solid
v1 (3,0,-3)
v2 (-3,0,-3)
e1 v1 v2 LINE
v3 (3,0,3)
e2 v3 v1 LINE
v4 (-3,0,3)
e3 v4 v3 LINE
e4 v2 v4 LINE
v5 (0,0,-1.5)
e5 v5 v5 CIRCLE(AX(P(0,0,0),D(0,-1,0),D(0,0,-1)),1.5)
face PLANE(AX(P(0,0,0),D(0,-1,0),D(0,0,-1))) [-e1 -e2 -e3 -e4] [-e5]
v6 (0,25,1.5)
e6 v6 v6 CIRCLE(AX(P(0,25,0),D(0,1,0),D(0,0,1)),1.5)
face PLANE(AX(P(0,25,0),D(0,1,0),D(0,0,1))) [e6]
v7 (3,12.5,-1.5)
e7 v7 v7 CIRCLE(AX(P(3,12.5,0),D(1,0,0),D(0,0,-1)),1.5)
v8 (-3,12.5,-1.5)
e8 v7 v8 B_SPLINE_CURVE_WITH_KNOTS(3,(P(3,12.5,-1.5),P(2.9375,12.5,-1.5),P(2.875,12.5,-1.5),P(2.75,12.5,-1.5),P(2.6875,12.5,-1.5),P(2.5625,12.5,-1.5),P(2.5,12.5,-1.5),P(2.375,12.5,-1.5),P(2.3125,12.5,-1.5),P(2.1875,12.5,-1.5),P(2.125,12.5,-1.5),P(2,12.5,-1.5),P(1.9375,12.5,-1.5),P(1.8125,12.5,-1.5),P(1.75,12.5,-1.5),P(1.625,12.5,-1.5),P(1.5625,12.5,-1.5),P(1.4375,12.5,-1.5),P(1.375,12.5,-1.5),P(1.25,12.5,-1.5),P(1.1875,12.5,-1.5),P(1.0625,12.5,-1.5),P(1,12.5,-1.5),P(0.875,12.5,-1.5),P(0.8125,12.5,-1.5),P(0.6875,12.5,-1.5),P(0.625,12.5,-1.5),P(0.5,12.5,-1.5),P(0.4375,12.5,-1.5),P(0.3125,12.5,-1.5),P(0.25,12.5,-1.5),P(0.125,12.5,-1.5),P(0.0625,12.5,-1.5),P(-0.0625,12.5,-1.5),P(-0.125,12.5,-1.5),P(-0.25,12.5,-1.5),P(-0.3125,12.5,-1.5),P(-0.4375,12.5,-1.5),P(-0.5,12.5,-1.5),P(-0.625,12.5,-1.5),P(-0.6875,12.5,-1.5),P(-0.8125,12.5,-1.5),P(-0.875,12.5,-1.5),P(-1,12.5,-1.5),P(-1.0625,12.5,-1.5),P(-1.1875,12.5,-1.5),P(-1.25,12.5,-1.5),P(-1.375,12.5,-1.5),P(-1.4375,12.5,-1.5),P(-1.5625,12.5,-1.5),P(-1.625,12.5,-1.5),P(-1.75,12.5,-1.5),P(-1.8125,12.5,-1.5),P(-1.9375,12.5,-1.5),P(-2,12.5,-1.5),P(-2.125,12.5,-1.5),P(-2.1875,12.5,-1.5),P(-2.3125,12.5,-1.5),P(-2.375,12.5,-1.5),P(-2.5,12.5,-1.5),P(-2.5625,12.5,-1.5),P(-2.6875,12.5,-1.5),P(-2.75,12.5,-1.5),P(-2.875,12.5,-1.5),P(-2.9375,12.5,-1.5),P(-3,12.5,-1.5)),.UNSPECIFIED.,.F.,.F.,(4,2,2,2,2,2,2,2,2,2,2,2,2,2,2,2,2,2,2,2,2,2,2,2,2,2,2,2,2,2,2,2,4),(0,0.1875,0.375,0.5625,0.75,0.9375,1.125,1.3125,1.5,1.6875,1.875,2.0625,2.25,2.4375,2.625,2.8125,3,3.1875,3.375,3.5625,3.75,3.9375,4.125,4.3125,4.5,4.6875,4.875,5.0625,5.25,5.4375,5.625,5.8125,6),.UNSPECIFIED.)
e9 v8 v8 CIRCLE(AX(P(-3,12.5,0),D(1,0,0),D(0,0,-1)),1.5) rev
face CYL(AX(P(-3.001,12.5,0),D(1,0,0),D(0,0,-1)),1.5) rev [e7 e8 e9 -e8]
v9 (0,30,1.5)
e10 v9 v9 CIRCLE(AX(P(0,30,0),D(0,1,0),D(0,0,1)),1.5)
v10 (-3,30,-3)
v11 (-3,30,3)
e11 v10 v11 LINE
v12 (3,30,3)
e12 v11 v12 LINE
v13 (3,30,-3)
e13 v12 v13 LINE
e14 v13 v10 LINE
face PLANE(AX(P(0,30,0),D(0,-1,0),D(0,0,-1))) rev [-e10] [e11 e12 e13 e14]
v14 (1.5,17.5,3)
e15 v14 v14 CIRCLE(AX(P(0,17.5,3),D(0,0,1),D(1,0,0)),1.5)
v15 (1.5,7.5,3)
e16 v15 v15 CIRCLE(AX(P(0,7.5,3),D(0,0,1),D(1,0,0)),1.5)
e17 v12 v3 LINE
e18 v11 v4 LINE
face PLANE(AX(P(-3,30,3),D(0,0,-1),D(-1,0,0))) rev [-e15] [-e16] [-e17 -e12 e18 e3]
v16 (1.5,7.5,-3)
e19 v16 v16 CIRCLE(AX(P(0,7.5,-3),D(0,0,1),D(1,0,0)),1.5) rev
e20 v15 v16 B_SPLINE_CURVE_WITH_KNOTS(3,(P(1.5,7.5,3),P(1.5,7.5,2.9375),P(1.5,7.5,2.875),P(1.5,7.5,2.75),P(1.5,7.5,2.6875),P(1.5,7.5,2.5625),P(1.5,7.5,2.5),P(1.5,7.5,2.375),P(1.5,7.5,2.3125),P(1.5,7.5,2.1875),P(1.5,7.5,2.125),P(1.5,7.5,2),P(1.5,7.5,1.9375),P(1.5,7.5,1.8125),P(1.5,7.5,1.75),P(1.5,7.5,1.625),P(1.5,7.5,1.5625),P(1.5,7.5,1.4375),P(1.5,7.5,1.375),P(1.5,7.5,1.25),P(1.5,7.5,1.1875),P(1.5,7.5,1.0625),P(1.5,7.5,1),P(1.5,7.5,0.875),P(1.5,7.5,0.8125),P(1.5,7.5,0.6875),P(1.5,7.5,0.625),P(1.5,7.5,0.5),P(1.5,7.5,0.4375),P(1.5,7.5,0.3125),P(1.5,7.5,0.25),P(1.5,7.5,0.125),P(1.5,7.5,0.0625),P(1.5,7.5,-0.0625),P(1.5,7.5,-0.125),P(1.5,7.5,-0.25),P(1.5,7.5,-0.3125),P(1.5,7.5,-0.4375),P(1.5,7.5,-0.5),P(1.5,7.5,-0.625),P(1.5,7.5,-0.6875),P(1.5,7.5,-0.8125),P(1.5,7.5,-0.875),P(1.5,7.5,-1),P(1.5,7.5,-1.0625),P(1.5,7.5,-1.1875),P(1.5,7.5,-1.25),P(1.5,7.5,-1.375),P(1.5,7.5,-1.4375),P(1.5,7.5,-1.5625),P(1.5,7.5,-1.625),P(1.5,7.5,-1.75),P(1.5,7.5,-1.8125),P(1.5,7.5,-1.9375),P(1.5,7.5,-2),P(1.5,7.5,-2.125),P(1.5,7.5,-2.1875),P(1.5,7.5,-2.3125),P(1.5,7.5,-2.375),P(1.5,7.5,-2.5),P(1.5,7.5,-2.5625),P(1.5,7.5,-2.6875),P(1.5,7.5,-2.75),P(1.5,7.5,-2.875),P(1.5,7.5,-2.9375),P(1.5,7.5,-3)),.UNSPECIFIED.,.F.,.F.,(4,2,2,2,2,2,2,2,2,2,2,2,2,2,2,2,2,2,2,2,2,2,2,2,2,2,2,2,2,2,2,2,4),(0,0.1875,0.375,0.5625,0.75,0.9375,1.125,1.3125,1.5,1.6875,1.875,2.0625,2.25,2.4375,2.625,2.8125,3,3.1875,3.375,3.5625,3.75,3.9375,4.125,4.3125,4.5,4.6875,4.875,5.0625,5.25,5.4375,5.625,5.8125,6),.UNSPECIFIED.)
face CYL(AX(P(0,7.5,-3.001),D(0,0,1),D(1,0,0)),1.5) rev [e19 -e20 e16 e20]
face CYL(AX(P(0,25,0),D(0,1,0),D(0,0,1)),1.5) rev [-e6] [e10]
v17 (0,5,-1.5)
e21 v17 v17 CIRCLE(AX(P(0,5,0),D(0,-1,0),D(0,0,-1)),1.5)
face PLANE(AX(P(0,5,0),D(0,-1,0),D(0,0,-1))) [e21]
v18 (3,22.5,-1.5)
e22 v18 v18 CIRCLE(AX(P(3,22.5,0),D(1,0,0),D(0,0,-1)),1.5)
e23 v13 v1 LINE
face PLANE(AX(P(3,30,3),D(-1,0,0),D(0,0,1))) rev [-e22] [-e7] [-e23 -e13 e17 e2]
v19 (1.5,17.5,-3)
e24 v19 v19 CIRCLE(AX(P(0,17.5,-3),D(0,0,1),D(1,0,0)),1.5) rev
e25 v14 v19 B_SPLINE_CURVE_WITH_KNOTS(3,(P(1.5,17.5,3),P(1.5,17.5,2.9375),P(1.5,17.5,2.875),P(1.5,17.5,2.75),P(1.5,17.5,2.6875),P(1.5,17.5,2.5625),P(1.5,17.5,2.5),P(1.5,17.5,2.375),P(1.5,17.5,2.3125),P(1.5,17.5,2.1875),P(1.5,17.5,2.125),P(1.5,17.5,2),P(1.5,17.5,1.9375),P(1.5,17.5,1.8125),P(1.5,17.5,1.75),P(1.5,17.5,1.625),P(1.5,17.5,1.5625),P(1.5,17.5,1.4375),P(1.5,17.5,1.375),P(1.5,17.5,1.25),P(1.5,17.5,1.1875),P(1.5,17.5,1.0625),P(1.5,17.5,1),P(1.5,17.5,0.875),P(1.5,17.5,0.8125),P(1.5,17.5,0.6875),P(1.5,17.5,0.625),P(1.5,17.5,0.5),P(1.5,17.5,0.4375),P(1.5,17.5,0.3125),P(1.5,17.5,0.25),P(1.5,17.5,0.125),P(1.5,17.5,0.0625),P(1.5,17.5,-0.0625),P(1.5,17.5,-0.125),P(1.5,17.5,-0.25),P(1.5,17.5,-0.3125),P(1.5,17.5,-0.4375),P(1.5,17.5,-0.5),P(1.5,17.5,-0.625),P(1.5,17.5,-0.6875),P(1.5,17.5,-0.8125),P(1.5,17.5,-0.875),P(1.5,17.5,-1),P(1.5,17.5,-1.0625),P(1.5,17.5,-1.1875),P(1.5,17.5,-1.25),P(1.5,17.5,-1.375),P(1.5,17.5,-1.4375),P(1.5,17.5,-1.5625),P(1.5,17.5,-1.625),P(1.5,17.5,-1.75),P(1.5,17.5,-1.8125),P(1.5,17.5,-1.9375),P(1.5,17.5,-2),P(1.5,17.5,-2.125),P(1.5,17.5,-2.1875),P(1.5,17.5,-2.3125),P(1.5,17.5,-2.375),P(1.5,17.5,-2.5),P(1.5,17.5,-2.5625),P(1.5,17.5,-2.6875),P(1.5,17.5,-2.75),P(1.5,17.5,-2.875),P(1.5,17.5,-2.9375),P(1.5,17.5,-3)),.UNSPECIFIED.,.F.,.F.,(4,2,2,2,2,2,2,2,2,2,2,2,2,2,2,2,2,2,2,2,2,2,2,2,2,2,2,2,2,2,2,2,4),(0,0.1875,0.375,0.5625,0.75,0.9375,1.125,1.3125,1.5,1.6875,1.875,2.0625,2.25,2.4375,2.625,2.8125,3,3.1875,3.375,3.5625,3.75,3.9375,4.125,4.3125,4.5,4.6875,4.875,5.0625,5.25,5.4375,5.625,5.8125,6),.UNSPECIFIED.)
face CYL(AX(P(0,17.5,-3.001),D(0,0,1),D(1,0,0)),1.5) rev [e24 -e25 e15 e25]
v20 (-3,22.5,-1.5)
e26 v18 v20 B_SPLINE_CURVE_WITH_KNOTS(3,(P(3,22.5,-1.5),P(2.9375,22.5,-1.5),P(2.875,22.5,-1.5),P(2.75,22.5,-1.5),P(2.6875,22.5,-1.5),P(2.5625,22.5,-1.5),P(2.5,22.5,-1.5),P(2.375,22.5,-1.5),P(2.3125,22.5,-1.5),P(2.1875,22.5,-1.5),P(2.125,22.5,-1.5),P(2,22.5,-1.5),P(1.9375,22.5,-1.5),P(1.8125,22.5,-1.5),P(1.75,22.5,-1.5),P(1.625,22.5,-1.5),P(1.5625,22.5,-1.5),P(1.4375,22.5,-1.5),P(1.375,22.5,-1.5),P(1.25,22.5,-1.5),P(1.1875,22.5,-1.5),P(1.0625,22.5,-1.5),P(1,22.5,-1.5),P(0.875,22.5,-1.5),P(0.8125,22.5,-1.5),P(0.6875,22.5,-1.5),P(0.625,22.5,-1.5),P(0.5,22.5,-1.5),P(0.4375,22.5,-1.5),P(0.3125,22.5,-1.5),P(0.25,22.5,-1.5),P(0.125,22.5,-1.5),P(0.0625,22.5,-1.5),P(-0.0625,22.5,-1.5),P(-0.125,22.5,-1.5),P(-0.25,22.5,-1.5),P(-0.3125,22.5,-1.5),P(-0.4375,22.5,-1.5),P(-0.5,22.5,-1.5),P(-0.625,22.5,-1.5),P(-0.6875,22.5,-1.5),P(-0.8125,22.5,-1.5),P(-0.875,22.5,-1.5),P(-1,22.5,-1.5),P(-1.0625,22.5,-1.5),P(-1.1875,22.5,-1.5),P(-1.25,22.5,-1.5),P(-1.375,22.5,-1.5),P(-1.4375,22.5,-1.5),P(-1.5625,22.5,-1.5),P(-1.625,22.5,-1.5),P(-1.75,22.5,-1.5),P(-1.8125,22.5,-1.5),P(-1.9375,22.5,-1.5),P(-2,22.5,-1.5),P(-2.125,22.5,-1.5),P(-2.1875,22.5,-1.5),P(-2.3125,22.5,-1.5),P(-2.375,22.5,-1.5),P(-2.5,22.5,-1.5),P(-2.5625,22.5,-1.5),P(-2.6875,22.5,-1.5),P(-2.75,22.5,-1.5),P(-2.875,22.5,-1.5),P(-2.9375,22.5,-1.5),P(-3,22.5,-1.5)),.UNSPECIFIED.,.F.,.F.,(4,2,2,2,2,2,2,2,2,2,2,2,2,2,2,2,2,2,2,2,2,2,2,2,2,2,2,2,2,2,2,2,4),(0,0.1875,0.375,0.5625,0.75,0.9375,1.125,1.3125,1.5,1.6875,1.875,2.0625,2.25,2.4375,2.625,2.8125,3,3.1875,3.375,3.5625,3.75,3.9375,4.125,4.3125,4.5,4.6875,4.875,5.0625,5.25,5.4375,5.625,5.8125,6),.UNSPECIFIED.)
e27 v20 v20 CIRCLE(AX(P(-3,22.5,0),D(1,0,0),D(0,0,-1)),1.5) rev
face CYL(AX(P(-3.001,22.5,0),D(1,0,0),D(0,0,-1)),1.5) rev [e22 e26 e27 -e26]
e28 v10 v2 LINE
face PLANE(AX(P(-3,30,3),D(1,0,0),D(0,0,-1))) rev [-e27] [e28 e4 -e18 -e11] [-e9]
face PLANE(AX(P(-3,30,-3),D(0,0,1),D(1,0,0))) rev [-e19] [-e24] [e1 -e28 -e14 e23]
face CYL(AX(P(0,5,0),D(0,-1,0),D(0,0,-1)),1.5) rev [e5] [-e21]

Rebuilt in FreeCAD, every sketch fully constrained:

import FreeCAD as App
import Part
import Sketcher
from FreeCAD import Vector


def add_polygon(sketch, points):
    """Adds a closed chain of lines whose ends are joined by coincident constraints."""
    first, n = sketch.GeometryCount, len(points)
    for a, b in zip(points, points[1:] + points[:1]):
        sketch.addGeometry(Part.LineSegment(App.Vector(*a, 0), App.Vector(*b, 0)), False)
    for i in range(n):
        sketch.addConstraint(Sketcher.Constraint("Coincident", first + i, 2, first + (i + 1) % n, 1))

doc = App.newDocument("Part")
body = doc.addObject("PartDesign::Body", "Body")

# Sketch on XZ plane
sketch1 = body.newObject("Sketcher::SketchObject", "Sketch")
sketch1.AttachmentSupport = (doc.getObject("XZ_Plane"), [""])
sketch1.MapMode = "FlatFace"
add_polygon(sketch1, [(-3, -3), (-3, 3), (3, 3), (3, -3)])  # lines 0-3
sketch1.addConstraint([
    Sketcher.Constraint("Vertical", 0),
    Sketcher.Constraint("Horizontal", 1),
    Sketcher.Constraint("Vertical", 2),
    Sketcher.Constraint("Horizontal", 3),
    Sketcher.Constraint("Symmetric", 0, 2, 2, 2, -1, 1),
    Sketcher.Constraint("Equal", 3, 0),
    Sketcher.Constraint("DistanceX", 1, 1, 1, 2, 6.0),
])
pad1 = body.newObject("PartDesign::Pad", "Pad")
pad1.Profile = sketch1
pad1.Length = 30
pad1.Reversed = True

# Sketch on XY plane
sketch2 = body.newObject("Sketcher::SketchObject", "Sketch001")
sketch2.AttachmentSupport = (doc.getObject("XY_Plane"), [""])
sketch2.MapMode = "FlatFace"
sketch2.AttachmentOffset = App.Placement(Vector(0, 0, 3), App.Rotation())
sketch2.addGeometry(Part.Circle(Vector(0, 17.5, 0), Vector(0, 0, 1), 1.5), False)
sketch2.addConstraint([
    Sketcher.Constraint("PointOnObject", 0, 3, -2),
    Sketcher.Constraint("Diameter", 0, 3.0),
    Sketcher.Constraint("DistanceY", -1, 1, 0, 3, 17.5),
])
pocket1 = body.newObject("PartDesign::Pocket", "Pocket")
pocket1.Profile = sketch2
pocket1.Type = "UpToFirst"

# Sketch on XY plane
sketch3 = body.newObject("Sketcher::SketchObject", "Sketch002")
sketch3.AttachmentSupport = (doc.getObject("XY_Plane"), [""])
sketch3.MapMode = "FlatFace"
sketch3.AttachmentOffset = App.Placement(Vector(0, 0, 3), App.Rotation())
sketch3.addGeometry(Part.Circle(Vector(0, 7.5, 0), Vector(0, 0, 1), 1.5), False)
sketch3.addConstraint([
    Sketcher.Constraint("PointOnObject", 0, 3, -2),
    Sketcher.Constraint("Diameter", 0, 3.0),
    Sketcher.Constraint("DistanceY", -1, 1, 0, 3, 7.5),
])
pocket2 = body.newObject("PartDesign::Pocket", "Pocket001")
pocket2.Profile = sketch3
pocket2.Type = "UpToFirst"

# Sketch on YZ plane
sketch4 = body.newObject("Sketcher::SketchObject", "Sketch003")
sketch4.AttachmentSupport = (doc.getObject("YZ_Plane"), [""])
sketch4.MapMode = "FlatFace"
sketch4.AttachmentOffset = App.Placement(Vector(0, 0, 3), App.Rotation())
sketch4.addGeometry(Part.Circle(Vector(22.5, 0, 0), Vector(0, 0, 1), 1.5), False)
sketch4.addConstraint([
    Sketcher.Constraint("PointOnObject", 0, 3, -1),
    Sketcher.Constraint("Diameter", 0, 3.0),
    Sketcher.Constraint("DistanceX", -1, 1, 0, 3, 22.5),
])
pocket3 = body.newObject("PartDesign::Pocket", "Pocket002")
pocket3.Profile = sketch4
pocket3.Type = "UpToFirst"

# Sketch on YZ plane
sketch5 = body.newObject("Sketcher::SketchObject", "Sketch004")
sketch5.AttachmentSupport = (doc.getObject("YZ_Plane"), [""])
sketch5.MapMode = "FlatFace"
sketch5.AttachmentOffset = App.Placement(Vector(0, 0, 3), App.Rotation())
sketch5.addGeometry(Part.Circle(Vector(12.5, 0, 0), Vector(0, 0, 1), 1.5), False)
sketch5.addConstraint([
    Sketcher.Constraint("PointOnObject", 0, 3, -1),
    Sketcher.Constraint("Diameter", 0, 3.0),
    Sketcher.Constraint("DistanceX", -1, 1, 0, 3, 12.5),
])
pocket4 = body.newObject("PartDesign::Pocket", "Pocket003")
pocket4.Profile = sketch5
pocket4.Type = "UpToFirst"

# Sketch on XZ plane
sketch6 = body.newObject("Sketcher::SketchObject", "Sketch005")
sketch6.AttachmentSupport = (doc.getObject("XZ_Plane"), [""])
sketch6.MapMode = "FlatFace"
sketch6.AttachmentOffset = App.Placement(Vector(0, 0, -30), App.Rotation())
sketch6.addGeometry(Part.Circle(Vector(0, 0, 0), Vector(0, 0, 1), 1.5), False)
sketch6.addConstraint([
    Sketcher.Constraint("Coincident", 0, 3, -1, 1),
    Sketcher.Constraint("Diameter", 0, 3.0),
])
pocket5 = body.newObject("PartDesign::Pocket", "Pocket004")
pocket5.Profile = sketch6
pocket5.Length = 5
pocket5.Reversed = True

# Sketch on XZ plane
sketch7 = body.newObject("Sketcher::SketchObject", "Sketch006")
sketch7.AttachmentSupport = (doc.getObject("XZ_Plane"), [""])
sketch7.MapMode = "FlatFace"
sketch7.AttachmentOffset = App.Placement(Vector(0, 0, -5), App.Rotation())
sketch7.addGeometry(Part.Circle(Vector(0, 0, 0), Vector(0, 0, 1), 1.5), False)
sketch7.addConstraint([
    Sketcher.Constraint("Coincident", 0, 3, -1, 1),
    Sketcher.Constraint("Diameter", 0, 3.0),
])
pocket6 = body.newObject("PartDesign::Pocket", "Pocket005")
pocket6.Profile = sketch7
pocket6.Length = 5
pocket6.Reversed = True

doc.recompute()
